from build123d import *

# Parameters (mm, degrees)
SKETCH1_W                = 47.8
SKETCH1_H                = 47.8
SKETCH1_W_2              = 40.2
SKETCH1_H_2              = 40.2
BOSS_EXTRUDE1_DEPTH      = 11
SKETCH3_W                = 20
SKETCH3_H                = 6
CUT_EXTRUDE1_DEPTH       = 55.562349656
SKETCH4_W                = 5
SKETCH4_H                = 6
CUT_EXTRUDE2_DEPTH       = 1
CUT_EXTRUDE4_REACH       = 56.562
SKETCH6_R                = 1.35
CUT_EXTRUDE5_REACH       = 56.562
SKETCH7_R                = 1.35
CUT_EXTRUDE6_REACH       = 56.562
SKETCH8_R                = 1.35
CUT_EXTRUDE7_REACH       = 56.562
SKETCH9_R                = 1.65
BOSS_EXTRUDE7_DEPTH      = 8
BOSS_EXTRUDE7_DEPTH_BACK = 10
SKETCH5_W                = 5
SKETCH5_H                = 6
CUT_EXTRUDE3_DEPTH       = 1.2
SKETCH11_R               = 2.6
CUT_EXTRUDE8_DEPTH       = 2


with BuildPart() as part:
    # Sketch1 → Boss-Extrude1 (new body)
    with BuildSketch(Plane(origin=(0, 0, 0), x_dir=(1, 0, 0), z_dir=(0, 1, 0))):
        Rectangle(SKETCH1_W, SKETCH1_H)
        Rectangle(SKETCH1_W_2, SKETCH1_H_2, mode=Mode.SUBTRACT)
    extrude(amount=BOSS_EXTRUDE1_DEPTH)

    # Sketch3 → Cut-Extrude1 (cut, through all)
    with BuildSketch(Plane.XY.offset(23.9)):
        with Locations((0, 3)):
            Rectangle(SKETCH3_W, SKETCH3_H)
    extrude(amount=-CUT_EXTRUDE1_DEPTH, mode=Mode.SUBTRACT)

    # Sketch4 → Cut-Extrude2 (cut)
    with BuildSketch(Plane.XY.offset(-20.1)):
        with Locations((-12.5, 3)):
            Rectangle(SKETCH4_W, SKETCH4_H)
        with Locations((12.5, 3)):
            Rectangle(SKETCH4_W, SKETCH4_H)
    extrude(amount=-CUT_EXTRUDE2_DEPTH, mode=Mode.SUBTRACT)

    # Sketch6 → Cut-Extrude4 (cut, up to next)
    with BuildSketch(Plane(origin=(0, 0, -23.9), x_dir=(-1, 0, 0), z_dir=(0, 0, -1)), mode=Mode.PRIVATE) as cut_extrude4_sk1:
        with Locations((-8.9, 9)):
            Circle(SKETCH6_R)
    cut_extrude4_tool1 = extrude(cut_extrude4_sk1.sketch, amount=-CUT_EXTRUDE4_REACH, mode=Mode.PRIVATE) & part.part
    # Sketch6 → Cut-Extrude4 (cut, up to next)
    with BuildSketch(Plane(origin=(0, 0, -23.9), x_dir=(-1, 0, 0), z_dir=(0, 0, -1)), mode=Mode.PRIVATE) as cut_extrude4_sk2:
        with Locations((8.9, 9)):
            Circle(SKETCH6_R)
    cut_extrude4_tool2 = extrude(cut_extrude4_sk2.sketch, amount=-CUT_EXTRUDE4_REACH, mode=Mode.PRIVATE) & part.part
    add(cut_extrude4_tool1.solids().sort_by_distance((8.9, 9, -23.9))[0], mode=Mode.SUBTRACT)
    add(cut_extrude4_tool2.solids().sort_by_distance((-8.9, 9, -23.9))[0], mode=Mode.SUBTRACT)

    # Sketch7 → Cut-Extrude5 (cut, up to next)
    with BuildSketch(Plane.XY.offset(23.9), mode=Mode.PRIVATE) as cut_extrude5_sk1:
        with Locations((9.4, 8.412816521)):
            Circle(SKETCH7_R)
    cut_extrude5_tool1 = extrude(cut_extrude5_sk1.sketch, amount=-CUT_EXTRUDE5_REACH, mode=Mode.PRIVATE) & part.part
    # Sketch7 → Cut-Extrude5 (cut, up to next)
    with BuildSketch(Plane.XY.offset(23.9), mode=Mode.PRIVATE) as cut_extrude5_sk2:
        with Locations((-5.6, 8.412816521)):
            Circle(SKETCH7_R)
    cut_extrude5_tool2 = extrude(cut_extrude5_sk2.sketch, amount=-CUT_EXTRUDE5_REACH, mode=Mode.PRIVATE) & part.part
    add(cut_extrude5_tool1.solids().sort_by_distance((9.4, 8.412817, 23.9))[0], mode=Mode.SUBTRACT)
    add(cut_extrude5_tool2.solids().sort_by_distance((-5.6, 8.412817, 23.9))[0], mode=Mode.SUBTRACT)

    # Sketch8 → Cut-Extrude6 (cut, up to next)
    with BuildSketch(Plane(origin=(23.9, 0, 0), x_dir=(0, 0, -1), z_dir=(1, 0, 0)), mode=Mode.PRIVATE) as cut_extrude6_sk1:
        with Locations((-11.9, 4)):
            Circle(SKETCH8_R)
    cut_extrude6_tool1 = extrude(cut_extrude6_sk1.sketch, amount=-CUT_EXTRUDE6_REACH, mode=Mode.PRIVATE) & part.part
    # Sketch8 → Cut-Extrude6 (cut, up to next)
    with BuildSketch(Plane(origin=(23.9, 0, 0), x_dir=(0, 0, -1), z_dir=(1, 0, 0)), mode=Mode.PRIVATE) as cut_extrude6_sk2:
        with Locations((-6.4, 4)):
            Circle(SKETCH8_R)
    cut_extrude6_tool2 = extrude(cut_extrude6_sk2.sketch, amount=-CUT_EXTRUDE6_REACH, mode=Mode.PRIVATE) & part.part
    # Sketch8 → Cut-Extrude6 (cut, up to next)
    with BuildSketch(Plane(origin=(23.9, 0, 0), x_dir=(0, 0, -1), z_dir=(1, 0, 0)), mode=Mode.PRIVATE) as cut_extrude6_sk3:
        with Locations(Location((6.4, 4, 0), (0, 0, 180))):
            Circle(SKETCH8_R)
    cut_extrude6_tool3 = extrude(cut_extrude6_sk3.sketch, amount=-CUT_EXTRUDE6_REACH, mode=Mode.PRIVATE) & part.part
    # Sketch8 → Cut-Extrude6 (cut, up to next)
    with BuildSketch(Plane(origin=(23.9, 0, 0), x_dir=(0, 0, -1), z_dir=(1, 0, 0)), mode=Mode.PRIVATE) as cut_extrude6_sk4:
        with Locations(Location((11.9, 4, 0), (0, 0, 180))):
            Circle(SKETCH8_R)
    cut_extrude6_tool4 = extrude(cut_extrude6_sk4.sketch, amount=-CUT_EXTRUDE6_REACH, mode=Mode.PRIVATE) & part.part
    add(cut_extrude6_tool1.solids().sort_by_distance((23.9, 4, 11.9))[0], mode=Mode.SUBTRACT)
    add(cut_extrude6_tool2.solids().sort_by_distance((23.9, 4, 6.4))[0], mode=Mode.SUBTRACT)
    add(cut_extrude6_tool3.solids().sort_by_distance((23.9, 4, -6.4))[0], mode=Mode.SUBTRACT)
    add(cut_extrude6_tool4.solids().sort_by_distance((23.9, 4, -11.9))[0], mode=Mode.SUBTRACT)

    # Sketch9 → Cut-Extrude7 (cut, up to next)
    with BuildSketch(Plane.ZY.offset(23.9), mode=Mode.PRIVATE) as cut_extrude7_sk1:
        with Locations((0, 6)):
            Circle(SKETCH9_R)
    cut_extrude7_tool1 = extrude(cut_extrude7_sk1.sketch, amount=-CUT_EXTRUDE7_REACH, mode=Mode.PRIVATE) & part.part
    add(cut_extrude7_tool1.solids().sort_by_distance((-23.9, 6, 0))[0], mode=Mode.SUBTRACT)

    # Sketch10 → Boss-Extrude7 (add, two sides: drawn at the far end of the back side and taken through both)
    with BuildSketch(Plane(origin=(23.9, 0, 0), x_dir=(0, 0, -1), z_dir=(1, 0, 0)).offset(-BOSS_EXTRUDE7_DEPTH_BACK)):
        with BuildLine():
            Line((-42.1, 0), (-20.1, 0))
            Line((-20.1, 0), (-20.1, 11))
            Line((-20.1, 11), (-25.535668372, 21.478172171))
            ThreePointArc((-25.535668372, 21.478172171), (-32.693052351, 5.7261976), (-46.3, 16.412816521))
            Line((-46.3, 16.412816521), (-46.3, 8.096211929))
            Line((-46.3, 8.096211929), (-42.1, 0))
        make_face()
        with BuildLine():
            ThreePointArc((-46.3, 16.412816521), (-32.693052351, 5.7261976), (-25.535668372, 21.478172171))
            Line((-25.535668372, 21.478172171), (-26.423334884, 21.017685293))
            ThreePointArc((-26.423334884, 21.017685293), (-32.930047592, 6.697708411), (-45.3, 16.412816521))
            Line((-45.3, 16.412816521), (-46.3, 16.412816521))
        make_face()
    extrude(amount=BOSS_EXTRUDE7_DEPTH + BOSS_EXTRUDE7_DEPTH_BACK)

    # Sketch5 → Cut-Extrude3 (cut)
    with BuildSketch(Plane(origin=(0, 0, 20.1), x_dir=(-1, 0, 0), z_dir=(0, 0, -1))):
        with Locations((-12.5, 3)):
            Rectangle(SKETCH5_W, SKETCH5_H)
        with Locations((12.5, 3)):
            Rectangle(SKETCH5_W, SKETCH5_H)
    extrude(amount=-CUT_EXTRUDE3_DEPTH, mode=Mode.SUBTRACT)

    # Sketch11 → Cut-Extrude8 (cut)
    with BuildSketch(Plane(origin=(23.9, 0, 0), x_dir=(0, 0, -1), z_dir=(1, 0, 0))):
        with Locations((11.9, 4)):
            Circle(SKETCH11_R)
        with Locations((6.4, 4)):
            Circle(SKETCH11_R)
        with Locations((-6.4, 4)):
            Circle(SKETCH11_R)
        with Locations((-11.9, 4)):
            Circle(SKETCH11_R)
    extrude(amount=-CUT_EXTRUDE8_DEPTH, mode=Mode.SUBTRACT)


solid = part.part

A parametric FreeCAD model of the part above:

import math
import FreeCAD as App
import Part
import Sketcher

doc = App.newDocument("Part")
body = doc.addObject("PartDesign::Body", "Body")

# Sketch on XZ plane
sketch1 = body.newObject("Sketcher::SketchObject", "Sketch")
sketch1.AttachmentSupport = (doc.getObject("XZ_Plane"), [""])
sketch1.MapMode = "FlatFace"
sketch1.addGeometry(Part.LineSegment(App.Vector(-24, -24, 0), App.Vector(-24, 24, 0)), False)
sketch1.addGeometry(Part.LineSegment(App.Vector(-24, 24, 0), App.Vector(24, 24, 0)), False)
sketch1.addGeometry(Part.LineSegment(App.Vector(24, 24, 0), App.Vector(24, -24, 0)), False)
sketch1.addGeometry(Part.LineSegment(App.Vector(24, -24, 0), App.Vector(-24, -24, 0)), False)
sketch1.addGeometry(Part.LineSegment(App.Vector(20, 20, 0), App.Vector(-20, 20, 0)), False)
sketch1.addGeometry(Part.LineSegment(App.Vector(-20, 20, 0), App.Vector(-20, -20, 0)), False)
sketch1.addGeometry(Part.LineSegment(App.Vector(-20, -20, 0), App.Vector(20, -20, 0)), False)
sketch1.addGeometry(Part.LineSegment(App.Vector(20, -20, 0), App.Vector(20, 20, 0)), False)
sketch1.addConstraint(Sketcher.Constraint("Coincident", 0, 2, 1, 1))
sketch1.addConstraint(Sketcher.Constraint("Coincident", 1, 2, 2, 1))
sketch1.addConstraint(Sketcher.Constraint("Coincident", 2, 2, 3, 1))
sketch1.addConstraint(Sketcher.Constraint("Coincident", 3, 2, 0, 1))
sketch1.addConstraint(Sketcher.Constraint("Coincident", 4, 2, 5, 1))
sketch1.addConstraint(Sketcher.Constraint("Coincident", 5, 2, 6, 1))
sketch1.addConstraint(Sketcher.Constraint("Coincident", 6, 2, 7, 1))
sketch1.addConstraint(Sketcher.Constraint("Coincident", 7, 2, 4, 1))
sketch1.addConstraint(Sketcher.Constraint("Vertical", 0))
sketch1.addConstraint(Sketcher.Constraint("Horizontal", 1))
sketch1.addConstraint(Sketcher.Constraint("Vertical", 2))
sketch1.addConstraint(Sketcher.Constraint("Horizontal", 3))
sketch1.addConstraint(Sketcher.Constraint("Horizontal", 4))
sketch1.addConstraint(Sketcher.Constraint("Vertical", 5))
sketch1.addConstraint(Sketcher.Constraint("Horizontal", 6))
sketch1.addConstraint(Sketcher.Constraint("Vertical", 7))
sketch1.addConstraint(Sketcher.Constraint("Symmetric", 0, 2, 2, 2, -1, 1))
sketch1.addConstraint(Sketcher.Constraint("Symmetric", 4, 2, 6, 2, -1, 1))
sketch1.addConstraint(Sketcher.Constraint("Equal", 3, 0))
sketch1.addConstraint(Sketcher.Constraint("Equal", 6, 5))
sketch1.addConstraint(Sketcher.Constraint("DistanceX", 1, 1, 1, 2, 47.8))
sketch1.addConstraint(Sketcher.Constraint("DistanceX", 4, 2, 4, 1, 40.2))
pad1 = body.newObject("PartDesign::Pad", "Pad")
pad1.Profile = sketch1
pad1.Length = 11
pad1.Reversed = True

# Sketch on XY plane
sketch2 = body.newObject("Sketcher::SketchObject", "Sketch001")
sketch2.AttachmentSupport = (doc.getObject("XY_Plane"), [""])
sketch2.MapMode = "FlatFace"
sketch2.AttachmentOffset = App.Placement(App.Vector(0, 0, 23.9), App.Rotation())
sketch2.addGeometry(Part.LineSegment(App.Vector(-10, 6, 0), App.Vector(-10, 0, 0)), False)
sketch2.addGeometry(Part.LineSegment(App.Vector(-10, 0, 0), App.Vector(10, 0, 0)), False)
sketch2.addGeometry(Part.LineSegment(App.Vector(10, 0, 0), App.Vector(10, 6, 0)), False)
sketch2.addGeometry(Part.LineSegment(App.Vector(10, 6, 0), App.Vector(-10, 6, 0)), False)
sketch2.addConstraint(Sketcher.Constraint("Coincident", 0, 2, 1, 1))
sketch2.addConstraint(Sketcher.Constraint("Coincident", 1, 2, 2, 1))
sketch2.addConstraint(Sketcher.Constraint("Coincident", 2, 2, 3, 1))
sketch2.addConstraint(Sketcher.Constraint("Coincident", 3, 2, 0, 1))
sketch2.addConstraint(Sketcher.Constraint("Vertical", 0))
sketch2.addConstraint(Sketcher.Constraint("Horizontal", 1))
sketch2.addConstraint(Sketcher.Constraint("Vertical", 2))
sketch2.addConstraint(Sketcher.Constraint("Horizontal", 3))
sketch2.addConstraint(Sketcher.Constraint("Symmetric", 0, 2, 1, 2, -1, 1))
sketch2.addConstraint(Sketcher.Constraint("DistanceX", 1, 1, 1, 2, 20.0))
sketch2.addConstraint(Sketcher.Constraint("DistanceY", 0, 2, 0, 1, 6.0))
pocket1 = body.newObject("PartDesign::Pocket", "Pocket")
pocket1.Profile = sketch2
pocket1.Type = "ThroughAll"

# Sketch on XY plane
sketch3 = body.newObject("Sketcher::SketchObject", "Sketch002")
sketch3.AttachmentSupport = (doc.getObject("XY_Plane"), [""])
sketch3.MapMode = "FlatFace"
sketch3.AttachmentOffset = App.Placement(App.Vector(0, 0, -20.1), App.Rotation())
sketch3.addGeometry(Part.LineSegment(App.Vector(-15, 6, 0), App.Vector(-15, 0, 0)), False)
sketch3.addGeometry(Part.LineSegment(App.Vector(-15, 0, 0), App.Vector(-10, 0, 0)), False)
sketch3.addGeometry(Part.LineSegment(App.Vector(-10, 0, 0), App.Vector(-10, 6, 0)), False)
sketch3.addGeometry(Part.LineSegment(App.Vector(-10, 6, 0), App.Vector(-15, 6, 0)), False)
sketch3.addGeometry(Part.LineSegment(App.Vector(10, 6, 0), App.Vector(10, 0, 0)), False)
sketch3.addGeometry(Part.LineSegment(App.Vector(10, 0, 0), App.Vector(15, 0, 0)), False)
sketch3.addGeometry(Part.LineSegment(App.Vector(15, 0, 0), App.Vector(15, 6, 0)), False)
sketch3.addGeometry(Part.LineSegment(App.Vector(15, 6, 0), App.Vector(10, 6, 0)), False)
sketch3.addConstraint(Sketcher.Constraint("Coincident", 0, 2, 1, 1))
sketch3.addConstraint(Sketcher.Constraint("Coincident", 1, 2, 2, 1))
sketch3.addConstraint(Sketcher.Constraint("Coincident", 2, 2, 3, 1))
sketch3.addConstraint(Sketcher.Constraint("Coincident", 3, 2, 0, 1))
sketch3.addConstraint(Sketcher.Constraint("Coincident", 4, 2, 5, 1))
sketch3.addConstraint(Sketcher.Constraint("Coincident", 5, 2, 6, 1))
sketch3.addConstraint(Sketcher.Constraint("Coincident", 6, 2, 7, 1))
sketch3.addConstraint(Sketcher.Constraint("Coincident", 7, 2, 4, 1))
sketch3.addConstraint(Sketcher.Constraint("Vertical", 0))
sketch3.addConstraint(Sketcher.Constraint("Horizontal", 1))
sketch3.addConstraint(Sketcher.Constraint("Vertical", 2))
sketch3.addConstraint(Sketcher.Constraint("Horizontal", 3))
sketch3.addConstraint(Sketcher.Constraint("Vertical", 4))
sketch3.addConstraint(Sketcher.Constraint("Horizontal", 5))
sketch3.addConstraint(Sketcher.Constraint("Vertical", 6))
sketch3.addConstraint(Sketcher.Constraint("Horizontal", 7))
sketch3.addConstraint(Sketcher.Constraint("Symmetric", 1, 2, 4, 2, -1, 1))
sketch3.addConstraint(Sketcher.Constraint("Symmetric", 0, 2, 5, 2, -2))
sketch3.addConstraint(Sketcher.Constraint("Horizontal", 3, 2, 6, 2))
sketch3.addConstraint(Sketcher.Constraint("DistanceX", 1, 1, 1, 2, 5.0))
sketch3.addConstraint(Sketcher.Constraint("DistanceY", 0, 2, 0, 1, 6.0))
sketch3.addConstraint(Sketcher.Constraint("DistanceX", 0, 2, -1, 1, 15.0))
pocket2 = body.newObject("PartDesign::Pocket", "Pocket001")
pocket2.Profile = sketch3
pocket2.Length = 1

# Sketch on XY plane
sketch4 = body.newObject("Sketcher::SketchObject", "Sketch003")
sketch4.AttachmentSupport = (doc.getObject("XY_Plane"), [""])
sketch4.MapMode = "FlatFace"
sketch4.AttachmentOffset = App.Placement(App.Vector(0, 0, -23.9), App.Rotation())
sketch4.addGeometry(Part.Circle(App.Vector(8.9, 9, 0), App.Vector(0, 0, 1), 1.4), False)
sketch4.addConstraint(Sketcher.Constraint("Diameter", 0, 2.7))
sketch4.addConstraint(Sketcher.Constraint("DistanceY", -1, 1, 0, 3, 9.0))
sketch4.addConstraint(Sketcher.Constraint("DistanceX", -1, 1, 0, 3, 8.9))
pocket3 = body.newObject("PartDesign::Pocket", "Pocket002")
pocket3.Profile = sketch4
pocket3.Type = "UpToFirst"
pocket3.Reversed = True

# Sketch on XY plane
sketch5 = body.newObject("Sketcher::SketchObject", "Sketch004")
sketch5.AttachmentSupport = (doc.getObject("XY_Plane"), [""])
sketch5.MapMode = "FlatFace"
sketch5.AttachmentOffset = App.Placement(App.Vector(0, 0, -23.9), App.Rotation())
sketch5.addGeometry(Part.Circle(App.Vector(-8.9, 9, 0), App.Vector(0, 0, 1), 1.4), False)
sketch5.addConstraint(Sketcher.Constraint("Diameter", 0, 2.7))
sketch5.addConstraint(Sketcher.Constraint("DistanceY", -1, 1, 0, 3, 9.0))
sketch5.addConstraint(Sketcher.Constraint("DistanceX", 0, 3, -1, 1, 8.9))
pocket4 = body.newObject("PartDesign::Pocket", "Pocket003")
pocket4.Profile = sketch5
pocket4.Type = "UpToFirst"
pocket4.Reversed = True

# Sketch on XY plane
sketch6 = body.newObject("Sketcher::SketchObject", "Sketch005")
sketch6.AttachmentSupport = (doc.getObject("XY_Plane"), [""])
sketch6.MapMode = "FlatFace"
sketch6.AttachmentOffset = App.Placement(App.Vector(0, 0, 23.9), App.Rotation())
sketch6.addGeometry(Part.Circle(App.Vector(9.4, 8.4, 0), App.Vector(0, 0, 1), 1.4), False)
sketch6.addConstraint(Sketcher.Constraint("Diameter", 0, 2.7))
sketch6.addConstraint(Sketcher.Constraint("DistanceX", -1, 1, 0, 3, 9.4))
sketch6.addConstraint(Sketcher.Constraint("DistanceY", -1, 1, 0, 3, 8.412817))
pocket5 = body.newObject("PartDesign::Pocket", "Pocket004")
pocket5.Profile = sketch6
pocket5.Type = "UpToFirst"

# Sketch on XY plane
sketch7 = body.newObject("Sketcher::SketchObject", "Sketch006")
sketch7.AttachmentSupport = (doc.getObject("XY_Plane"), [""])
sketch7.MapMode = "FlatFace"
sketch7.AttachmentOffset = App.Placement(App.Vector(0, 0, 23.9), App.Rotation())
sketch7.addGeometry(Part.Circle(App.Vector(-5.6, 8.4, 0), App.Vector(0, 0, 1), 1.4), False)
sketch7.addConstraint(Sketcher.Constraint("Diameter", 0, 2.7))
sketch7.addConstraint(Sketcher.Constraint("DistanceX", 0, 3, -1, 1, 5.6))
sketch7.addConstraint(Sketcher.Constraint("DistanceY", -1, 1, 0, 3, 8.412817))
pocket6 = body.newObject("PartDesign::Pocket", "Pocket005")
pocket6.Profile = sketch7
pocket6.Type = "UpToFirst"

# Sketch on YZ plane
sketch8 = body.newObject("Sketcher::SketchObject", "Sketch007")
sketch8.AttachmentSupport = (doc.getObject("YZ_Plane"), [""])
sketch8.MapMode = "FlatFace"
sketch8.AttachmentOffset = App.Placement(App.Vector(0, 0, 23.9), App.Rotation())
sketch8.addGeometry(Part.Circle(App.Vector(4, 11.9, 0), App.Vector(0, 0, 1), 1.4), False)
sketch8.addConstraint(Sketcher.Constraint("Diameter", 0, 2.7))
sketch8.addConstraint(Sketcher.Constraint("DistanceX", -1, 1, 0, 3, 4.0))
sketch8.addConstraint(Sketcher.Constraint("DistanceY", -1, 1, 0, 3, 11.9))
pocket7 = body.newObject("PartDesign::Pocket", "Pocket006")
pocket7.Profile = sketch8
pocket7.Type = "UpToFirst"

# Sketch on YZ plane
sketch9 = body.newObject("Sketcher::SketchObject", "Sketch008")
sketch9.AttachmentSupport = (doc.getObject("YZ_Plane"), [""])
sketch9.MapMode = "FlatFace"
sketch9.AttachmentOffset = App.Placement(App.Vector(0, 0, 23.9), App.Rotation())
sketch9.addGeometry(Part.Circle(App.Vector(4, 6.4, 0), App.Vector(0, 0, 1), 1.4), False)
sketch9.addConstraint(Sketcher.Constraint("Diameter", 0, 2.7))
sketch9.addConstraint(Sketcher.Constraint("DistanceX", -1, 1, 0, 3, 4.0))
sketch9.addConstraint(Sketcher.Constraint("DistanceY", -1, 1, 0, 3, 6.4))
pocket8 = body.newObject("PartDesign::Pocket", "Pocket007")
pocket8.Profile = sketch9
pocket8.Type = "UpToFirst"

# Sketch on YZ plane
sketch10 = body.newObject("Sketcher::SketchObject", "Sketch009")
sketch10.AttachmentSupport = (doc.getObject("YZ_Plane"), [""])
sketch10.MapMode = "FlatFace"
sketch10.AttachmentOffset = App.Placement(App.Vector(0, 0, 23.9), App.Rotation())
sketch10.addGeometry(Part.Circle(App.Vector(4, -6.4, 0), App.Vector(0, 0, 1), 1.4), False)
sketch10.addConstraint(Sketcher.Constraint("Diameter", 0, 2.7))
sketch10.addConstraint(Sketcher.Constraint("DistanceX", -1, 1, 0, 3, 4.0))
sketch10.addConstraint(Sketcher.Constraint("DistanceY", 0, 3, -1, 1, 6.4))
pocket9 = body.newObject("PartDesign::Pocket", "Pocket008")
pocket9.Profile = sketch10
pocket9.Type = "UpToFirst"

# Sketch on YZ plane
sketch11 = body.newObject("Sketcher::SketchObject", "Sketch010")
sketch11.AttachmentSupport = (doc.getObject("YZ_Plane"), [""])
sketch11.MapMode = "FlatFace"
sketch11.AttachmentOffset = App.Placement(App.Vector(0, 0, 23.9), App.Rotation())
sketch11.addGeometry(Part.Circle(App.Vector(4, -11.9, 0), App.Vector(0, 0, 1), 1.4), False)
sketch11.addConstraint(Sketcher.Constraint("Diameter", 0, 2.7))
sketch11.addConstraint(Sketcher.Constraint("DistanceX", -1, 1, 0, 3, 4.0))
sketch11.addConstraint(Sketcher.Constraint("DistanceY", 0, 3, -1, 1, 11.9))
pocket10 = body.newObject("PartDesign::Pocket", "Pocket009")
pocket10.Profile = sketch11
pocket10.Type = "UpToFirst"

# Sketch on YZ plane
sketch12 = body.newObject("Sketcher::SketchObject", "Sketch011")
sketch12.AttachmentSupport = (doc.getObject("YZ_Plane"), [""])
sketch12.MapMode = "FlatFace"
sketch12.AttachmentOffset = App.Placement(App.Vector(0, 0, -23.9), App.Rotation())
sketch12.addGeometry(Part.Circle(App.Vector(6, 0, 0), App.Vector(0, 0, 1), 1.6), False)
sketch12.addConstraint(Sketcher.Constraint("PointOnObject", 0, 3, -1))
sketch12.addConstraint(Sketcher.Constraint("Diameter", 0, 3.3))
sketch12.addConstraint(Sketcher.Constraint("DistanceX", -1, 1, 0, 3, 6.0))
pocket11 = body.newObject("PartDesign::Pocket", "Pocket010")
pocket11.Profile = sketch12
pocket11.Type = "UpToFirst"
pocket11.Reversed = True

# Sketch on YZ plane
sketch13 = body.newObject("Sketcher::SketchObject", "Sketch012")
sketch13.AttachmentSupport = (doc.getObject("YZ_Plane"), [""])
sketch13.MapMode = "FlatFace"
sketch13.AttachmentOffset = App.Placement(App.Vector(0, 0, 23.9), App.Rotation())
sketch13.addGeometry(Part.LineSegment(App.Vector(0, 42.1, 0), App.Vector(0, 20.1, 0)), False)
sketch13.addGeometry(Part.LineSegment(App.Vector(0, 20.1, 0), App.Vector(11, 20.1, 0)), False)
sketch13.addGeometry(Part.LineSegment(App.Vector(11, 20.1, 0), App.Vector(21.5, 25.5, 0)), False)
sketch13.addGeometry(Part.LineSegment(App.Vector(21.5, 25.5, 0), App.Vector(21, 26.4, 0)), False)
sketch13.addGeometry(Part.ArcOfCircle(Part.Circle(App.Vector(16.4, 35.3, 0), App.Vector(0, 0, 1), 10), math.radians(90), math.radians(297)), False)
sketch13.addGeometry(Part.LineSegment(App.Vector(16.4, 45.3, 0), App.Vector(16.4, 46.3, 0)), False)
sketch13.addGeometry(Part.LineSegment(App.Vector(16.4, 46.3, 0), App.Vector(8.1, 46.3, 0)), False)
sketch13.addGeometry(Part.LineSegment(App.Vector(8.1, 46.3, 0), App.Vector(0, 42.1, 0)), False)
sketch13.addConstraint(Sketcher.Constraint("Coincident", 0, 2, 1, 1))
sketch13.addConstraint(Sketcher.Constraint("Coincident", 1, 2, 2, 1))
sketch13.addConstraint(Sketcher.Constraint("Coincident", 2, 2, 3, 1))
sketch13.addConstraint(Sketcher.Constraint("Coincident", 3, 2, 4, 2))
sketch13.addConstraint(Sketcher.Constraint("Coincident", 4, 1, 5, 1))
sketch13.addConstraint(Sketcher.Constraint("Coincident", 5, 2, 6, 1))
sketch13.addConstraint(Sketcher.Constraint("Coincident", 6, 2, 7, 1))
sketch13.addConstraint(Sketcher.Constraint("Coincident", 7, 2, 0, 1))
sketch13.addConstraint(Sketcher.Constraint("Vertical", 0))
sketch13.addConstraint(Sketcher.Constraint("Horizontal", 1))
sketch13.addConstraint(Sketcher.Constraint("Vertical", 5))
sketch13.addConstraint(Sketcher.Constraint("Horizontal", 6))
sketch13.addConstraint(Sketcher.Constraint("PointOnObject", 0, 2, -2))
sketch13.addConstraint(Sketcher.Constraint("Perpendicular", 2, 3))
sketch13.addConstraint(Sketcher.Constraint("Perpendicular", 3, 7))
sketch13.addConstraint(Sketcher.Constraint("Radius", 4, 10.0))
sketch13.addConstraint(Sketcher.Constraint("DistanceX", 1, 1, 1, 2, 11.0))
sketch13.addConstraint(Sketcher.Constraint("DistanceY", 0, 2, 0, 1, 22.0))
sketch13.addConstraint(Sketcher.Constraint("DistanceY", 5, 1, 5, 2, 1.0))
sketch13.addConstraint(Sketcher.Constraint("Distance", 3, 1.0))
sketch13.addConstraint(Sketcher.Constraint("DistanceY", -1, 1, 4, 3, 35.3))
sketch13.addConstraint(Sketcher.Constraint("DistanceY", -1, 1, 0, 2, 20.1))
sketch13.addConstraint(Sketcher.Constraint("Distance", 7, 9.120781))
sketch13.addConstraint(Sketcher.Constraint("DistanceX", 6, 2, 6, 1, 8.316605))
sketch13.addConstraint(Sketcher.Constraint("DistanceY", -1, 1, 2, 2, 25.535668))
pad2 = body.newObject("PartDesign::Pad", "Pad001")
pad2.Profile = sketch13
pad2.Type = "TwoLengths"
pad2.Length = 8
pad2.Length2 = 10

# Sketch on XY plane
sketch14 = body.newObject("Sketcher::SketchObject", "Sketch013")
sketch14.AttachmentSupport = (doc.getObject("XY_Plane"), [""])
sketch14.MapMode = "FlatFace"
sketch14.AttachmentOffset = App.Placement(App.Vector(0, 0, 20.1), App.Rotation())
sketch14.addGeometry(Part.LineSegment(App.Vector(15, 6, 0), App.Vector(15, 0, 0)), False)
sketch14.addGeometry(Part.LineSegment(App.Vector(15, 0, 0), App.Vector(10, 0, 0)), False)
sketch14.addGeometry(Part.LineSegment(App.Vector(10, 0, 0), App.Vector(10, 6, 0)), False)
sketch14.addGeometry(Part.LineSegment(App.Vector(10, 6, 0), App.Vector(15, 6, 0)), False)
sketch14.addGeometry(Part.LineSegment(App.Vector(-10, 6, 0), App.Vector(-10, 0, 0)), False)
sketch14.addGeometry(Part.LineSegment(App.Vector(-10, 0, 0), App.Vector(-15, 0, 0)), False)
sketch14.addGeometry(Part.LineSegment(App.Vector(-15, 0, 0), App.Vector(-15, 6, 0)), False)
sketch14.addGeometry(Part.LineSegment(App.Vector(-15, 6, 0), App.Vector(-10, 6, 0)), False)
sketch14.addConstraint(Sketcher.Constraint("Coincident", 0, 2, 1, 1))
sketch14.addConstraint(Sketcher.Constraint("Coincident", 1, 2, 2, 1))
sketch14.addConstraint(Sketcher.Constraint("Coincident", 2, 2, 3, 1))
sketch14.addConstraint(Sketcher.Constraint("Coincident", 3, 2, 0, 1))
sketch14.addConstraint(Sketcher.Constraint("Coincident", 4, 2, 5, 1))
sketch14.addConstraint(Sketcher.Constraint("Coincident", 5, 2, 6, 1))
sketch14.addConstraint(Sketcher.Constraint("Coincident", 6, 2, 7, 1))
sketch14.addConstraint(Sketcher.Constraint("Coincident", 7, 2, 4, 1))
sketch14.addConstraint(Sketcher.Constraint("Vertical", 0))
sketch14.addConstraint(Sketcher.Constraint("Horizontal", 1))
sketch14.addConstraint(Sketcher.Constraint("Vertical", 2))
sketch14.addConstraint(Sketcher.Constraint("Horizontal", 3))
sketch14.addConstraint(Sketcher.Constraint("Vertical", 4))
sketch14.addConstraint(Sketcher.Constraint("Horizontal", 5))
sketch14.addConstraint(Sketcher.Constraint("Vertical", 6))
sketch14.addConstraint(Sketcher.Constraint("Horizontal", 7))
sketch14.addConstraint(Sketcher.Constraint("Symmetric", 1, 2, 4, 2, -1, 1))
sketch14.addConstraint(Sketcher.Constraint("Symmetric", 0, 2, 5, 2, -2))
sketch14.addConstraint(Sketcher.Constraint("Horizontal", 3, 2, 6, 2))
sketch14.addConstraint(Sketcher.Constraint("DistanceX", 1, 2, 1, 1, 5.0))
sketch14.addConstraint(Sketcher.Constraint("DistanceY", 0, 2, 0, 1, 6.0))
sketch14.addConstraint(Sketcher.Constraint("DistanceX", -1, 1, 0, 2, 15.0))
pocket12 = body.newObject("PartDesign::Pocket", "Pocket011")
pocket12.Profile = sketch14
pocket12.Length = 1.2
pocket12.Reversed = True

# Sketch on YZ plane
sketch15 = body.newObject("Sketcher::SketchObject", "Sketch014")
sketch15.AttachmentSupport = (doc.getObject("YZ_Plane"), [""])
sketch15.MapMode = "FlatFace"
sketch15.AttachmentOffset = App.Placement(App.Vector(0, 0, 23.9), App.Rotation())
sketch15.addGeometry(Part.Circle(App.Vector(4, -11.9, 0), App.Vector(0, 0, 1), 2.6), False)
sketch15.addGeometry(Part.Circle(App.Vector(4, -6.4, 0), App.Vector(0, 0, 1), 2.6), False)
sketch15.addGeometry(Part.Circle(App.Vector(4, 6.4, 0), App.Vector(0, 0, 1), 2.6), False)
sketch15.addGeometry(Part.Circle(App.Vector(4, 11.9, 0), App.Vector(0, 0, 1), 2.6), False)
sketch15.addConstraint(Sketcher.Constraint("Equal", 0, 1))
sketch15.addConstraint(Sketcher.Constraint("Equal", 1, 2))
sketch15.addConstraint(Sketcher.Constraint("Equal", 2, 3))
sketch15.addConstraint(Sketcher.Constraint("Symmetric", 1, 3, 2, 3, -1))
sketch15.addConstraint(Sketcher.Constraint("Symmetric", 0, 3, 3, 3, -1))
sketch15.addConstraint(Sketcher.Constraint("Vertical", 0, 3, 1, 3))
sketch15.addConstraint(Sketcher.Constraint("Diameter", 0, 5.2))
sketch15.addConstraint(Sketcher.Constraint("DistanceX", -1, 1, 0, 3, 4.0))
sketch15.addConstraint(Sketcher.Constraint("DistanceY", 0, 3, -1, 1, 11.9))
sketch15.addConstraint(Sketcher.Constraint("DistanceY", 1, 3, -1, 1, 6.4))
pocket13 = body.newObject("PartDesign::Pocket", "Pocket012")
pocket13.Profile = sketch15
pocket13.Length = 2

doc.recompute()
